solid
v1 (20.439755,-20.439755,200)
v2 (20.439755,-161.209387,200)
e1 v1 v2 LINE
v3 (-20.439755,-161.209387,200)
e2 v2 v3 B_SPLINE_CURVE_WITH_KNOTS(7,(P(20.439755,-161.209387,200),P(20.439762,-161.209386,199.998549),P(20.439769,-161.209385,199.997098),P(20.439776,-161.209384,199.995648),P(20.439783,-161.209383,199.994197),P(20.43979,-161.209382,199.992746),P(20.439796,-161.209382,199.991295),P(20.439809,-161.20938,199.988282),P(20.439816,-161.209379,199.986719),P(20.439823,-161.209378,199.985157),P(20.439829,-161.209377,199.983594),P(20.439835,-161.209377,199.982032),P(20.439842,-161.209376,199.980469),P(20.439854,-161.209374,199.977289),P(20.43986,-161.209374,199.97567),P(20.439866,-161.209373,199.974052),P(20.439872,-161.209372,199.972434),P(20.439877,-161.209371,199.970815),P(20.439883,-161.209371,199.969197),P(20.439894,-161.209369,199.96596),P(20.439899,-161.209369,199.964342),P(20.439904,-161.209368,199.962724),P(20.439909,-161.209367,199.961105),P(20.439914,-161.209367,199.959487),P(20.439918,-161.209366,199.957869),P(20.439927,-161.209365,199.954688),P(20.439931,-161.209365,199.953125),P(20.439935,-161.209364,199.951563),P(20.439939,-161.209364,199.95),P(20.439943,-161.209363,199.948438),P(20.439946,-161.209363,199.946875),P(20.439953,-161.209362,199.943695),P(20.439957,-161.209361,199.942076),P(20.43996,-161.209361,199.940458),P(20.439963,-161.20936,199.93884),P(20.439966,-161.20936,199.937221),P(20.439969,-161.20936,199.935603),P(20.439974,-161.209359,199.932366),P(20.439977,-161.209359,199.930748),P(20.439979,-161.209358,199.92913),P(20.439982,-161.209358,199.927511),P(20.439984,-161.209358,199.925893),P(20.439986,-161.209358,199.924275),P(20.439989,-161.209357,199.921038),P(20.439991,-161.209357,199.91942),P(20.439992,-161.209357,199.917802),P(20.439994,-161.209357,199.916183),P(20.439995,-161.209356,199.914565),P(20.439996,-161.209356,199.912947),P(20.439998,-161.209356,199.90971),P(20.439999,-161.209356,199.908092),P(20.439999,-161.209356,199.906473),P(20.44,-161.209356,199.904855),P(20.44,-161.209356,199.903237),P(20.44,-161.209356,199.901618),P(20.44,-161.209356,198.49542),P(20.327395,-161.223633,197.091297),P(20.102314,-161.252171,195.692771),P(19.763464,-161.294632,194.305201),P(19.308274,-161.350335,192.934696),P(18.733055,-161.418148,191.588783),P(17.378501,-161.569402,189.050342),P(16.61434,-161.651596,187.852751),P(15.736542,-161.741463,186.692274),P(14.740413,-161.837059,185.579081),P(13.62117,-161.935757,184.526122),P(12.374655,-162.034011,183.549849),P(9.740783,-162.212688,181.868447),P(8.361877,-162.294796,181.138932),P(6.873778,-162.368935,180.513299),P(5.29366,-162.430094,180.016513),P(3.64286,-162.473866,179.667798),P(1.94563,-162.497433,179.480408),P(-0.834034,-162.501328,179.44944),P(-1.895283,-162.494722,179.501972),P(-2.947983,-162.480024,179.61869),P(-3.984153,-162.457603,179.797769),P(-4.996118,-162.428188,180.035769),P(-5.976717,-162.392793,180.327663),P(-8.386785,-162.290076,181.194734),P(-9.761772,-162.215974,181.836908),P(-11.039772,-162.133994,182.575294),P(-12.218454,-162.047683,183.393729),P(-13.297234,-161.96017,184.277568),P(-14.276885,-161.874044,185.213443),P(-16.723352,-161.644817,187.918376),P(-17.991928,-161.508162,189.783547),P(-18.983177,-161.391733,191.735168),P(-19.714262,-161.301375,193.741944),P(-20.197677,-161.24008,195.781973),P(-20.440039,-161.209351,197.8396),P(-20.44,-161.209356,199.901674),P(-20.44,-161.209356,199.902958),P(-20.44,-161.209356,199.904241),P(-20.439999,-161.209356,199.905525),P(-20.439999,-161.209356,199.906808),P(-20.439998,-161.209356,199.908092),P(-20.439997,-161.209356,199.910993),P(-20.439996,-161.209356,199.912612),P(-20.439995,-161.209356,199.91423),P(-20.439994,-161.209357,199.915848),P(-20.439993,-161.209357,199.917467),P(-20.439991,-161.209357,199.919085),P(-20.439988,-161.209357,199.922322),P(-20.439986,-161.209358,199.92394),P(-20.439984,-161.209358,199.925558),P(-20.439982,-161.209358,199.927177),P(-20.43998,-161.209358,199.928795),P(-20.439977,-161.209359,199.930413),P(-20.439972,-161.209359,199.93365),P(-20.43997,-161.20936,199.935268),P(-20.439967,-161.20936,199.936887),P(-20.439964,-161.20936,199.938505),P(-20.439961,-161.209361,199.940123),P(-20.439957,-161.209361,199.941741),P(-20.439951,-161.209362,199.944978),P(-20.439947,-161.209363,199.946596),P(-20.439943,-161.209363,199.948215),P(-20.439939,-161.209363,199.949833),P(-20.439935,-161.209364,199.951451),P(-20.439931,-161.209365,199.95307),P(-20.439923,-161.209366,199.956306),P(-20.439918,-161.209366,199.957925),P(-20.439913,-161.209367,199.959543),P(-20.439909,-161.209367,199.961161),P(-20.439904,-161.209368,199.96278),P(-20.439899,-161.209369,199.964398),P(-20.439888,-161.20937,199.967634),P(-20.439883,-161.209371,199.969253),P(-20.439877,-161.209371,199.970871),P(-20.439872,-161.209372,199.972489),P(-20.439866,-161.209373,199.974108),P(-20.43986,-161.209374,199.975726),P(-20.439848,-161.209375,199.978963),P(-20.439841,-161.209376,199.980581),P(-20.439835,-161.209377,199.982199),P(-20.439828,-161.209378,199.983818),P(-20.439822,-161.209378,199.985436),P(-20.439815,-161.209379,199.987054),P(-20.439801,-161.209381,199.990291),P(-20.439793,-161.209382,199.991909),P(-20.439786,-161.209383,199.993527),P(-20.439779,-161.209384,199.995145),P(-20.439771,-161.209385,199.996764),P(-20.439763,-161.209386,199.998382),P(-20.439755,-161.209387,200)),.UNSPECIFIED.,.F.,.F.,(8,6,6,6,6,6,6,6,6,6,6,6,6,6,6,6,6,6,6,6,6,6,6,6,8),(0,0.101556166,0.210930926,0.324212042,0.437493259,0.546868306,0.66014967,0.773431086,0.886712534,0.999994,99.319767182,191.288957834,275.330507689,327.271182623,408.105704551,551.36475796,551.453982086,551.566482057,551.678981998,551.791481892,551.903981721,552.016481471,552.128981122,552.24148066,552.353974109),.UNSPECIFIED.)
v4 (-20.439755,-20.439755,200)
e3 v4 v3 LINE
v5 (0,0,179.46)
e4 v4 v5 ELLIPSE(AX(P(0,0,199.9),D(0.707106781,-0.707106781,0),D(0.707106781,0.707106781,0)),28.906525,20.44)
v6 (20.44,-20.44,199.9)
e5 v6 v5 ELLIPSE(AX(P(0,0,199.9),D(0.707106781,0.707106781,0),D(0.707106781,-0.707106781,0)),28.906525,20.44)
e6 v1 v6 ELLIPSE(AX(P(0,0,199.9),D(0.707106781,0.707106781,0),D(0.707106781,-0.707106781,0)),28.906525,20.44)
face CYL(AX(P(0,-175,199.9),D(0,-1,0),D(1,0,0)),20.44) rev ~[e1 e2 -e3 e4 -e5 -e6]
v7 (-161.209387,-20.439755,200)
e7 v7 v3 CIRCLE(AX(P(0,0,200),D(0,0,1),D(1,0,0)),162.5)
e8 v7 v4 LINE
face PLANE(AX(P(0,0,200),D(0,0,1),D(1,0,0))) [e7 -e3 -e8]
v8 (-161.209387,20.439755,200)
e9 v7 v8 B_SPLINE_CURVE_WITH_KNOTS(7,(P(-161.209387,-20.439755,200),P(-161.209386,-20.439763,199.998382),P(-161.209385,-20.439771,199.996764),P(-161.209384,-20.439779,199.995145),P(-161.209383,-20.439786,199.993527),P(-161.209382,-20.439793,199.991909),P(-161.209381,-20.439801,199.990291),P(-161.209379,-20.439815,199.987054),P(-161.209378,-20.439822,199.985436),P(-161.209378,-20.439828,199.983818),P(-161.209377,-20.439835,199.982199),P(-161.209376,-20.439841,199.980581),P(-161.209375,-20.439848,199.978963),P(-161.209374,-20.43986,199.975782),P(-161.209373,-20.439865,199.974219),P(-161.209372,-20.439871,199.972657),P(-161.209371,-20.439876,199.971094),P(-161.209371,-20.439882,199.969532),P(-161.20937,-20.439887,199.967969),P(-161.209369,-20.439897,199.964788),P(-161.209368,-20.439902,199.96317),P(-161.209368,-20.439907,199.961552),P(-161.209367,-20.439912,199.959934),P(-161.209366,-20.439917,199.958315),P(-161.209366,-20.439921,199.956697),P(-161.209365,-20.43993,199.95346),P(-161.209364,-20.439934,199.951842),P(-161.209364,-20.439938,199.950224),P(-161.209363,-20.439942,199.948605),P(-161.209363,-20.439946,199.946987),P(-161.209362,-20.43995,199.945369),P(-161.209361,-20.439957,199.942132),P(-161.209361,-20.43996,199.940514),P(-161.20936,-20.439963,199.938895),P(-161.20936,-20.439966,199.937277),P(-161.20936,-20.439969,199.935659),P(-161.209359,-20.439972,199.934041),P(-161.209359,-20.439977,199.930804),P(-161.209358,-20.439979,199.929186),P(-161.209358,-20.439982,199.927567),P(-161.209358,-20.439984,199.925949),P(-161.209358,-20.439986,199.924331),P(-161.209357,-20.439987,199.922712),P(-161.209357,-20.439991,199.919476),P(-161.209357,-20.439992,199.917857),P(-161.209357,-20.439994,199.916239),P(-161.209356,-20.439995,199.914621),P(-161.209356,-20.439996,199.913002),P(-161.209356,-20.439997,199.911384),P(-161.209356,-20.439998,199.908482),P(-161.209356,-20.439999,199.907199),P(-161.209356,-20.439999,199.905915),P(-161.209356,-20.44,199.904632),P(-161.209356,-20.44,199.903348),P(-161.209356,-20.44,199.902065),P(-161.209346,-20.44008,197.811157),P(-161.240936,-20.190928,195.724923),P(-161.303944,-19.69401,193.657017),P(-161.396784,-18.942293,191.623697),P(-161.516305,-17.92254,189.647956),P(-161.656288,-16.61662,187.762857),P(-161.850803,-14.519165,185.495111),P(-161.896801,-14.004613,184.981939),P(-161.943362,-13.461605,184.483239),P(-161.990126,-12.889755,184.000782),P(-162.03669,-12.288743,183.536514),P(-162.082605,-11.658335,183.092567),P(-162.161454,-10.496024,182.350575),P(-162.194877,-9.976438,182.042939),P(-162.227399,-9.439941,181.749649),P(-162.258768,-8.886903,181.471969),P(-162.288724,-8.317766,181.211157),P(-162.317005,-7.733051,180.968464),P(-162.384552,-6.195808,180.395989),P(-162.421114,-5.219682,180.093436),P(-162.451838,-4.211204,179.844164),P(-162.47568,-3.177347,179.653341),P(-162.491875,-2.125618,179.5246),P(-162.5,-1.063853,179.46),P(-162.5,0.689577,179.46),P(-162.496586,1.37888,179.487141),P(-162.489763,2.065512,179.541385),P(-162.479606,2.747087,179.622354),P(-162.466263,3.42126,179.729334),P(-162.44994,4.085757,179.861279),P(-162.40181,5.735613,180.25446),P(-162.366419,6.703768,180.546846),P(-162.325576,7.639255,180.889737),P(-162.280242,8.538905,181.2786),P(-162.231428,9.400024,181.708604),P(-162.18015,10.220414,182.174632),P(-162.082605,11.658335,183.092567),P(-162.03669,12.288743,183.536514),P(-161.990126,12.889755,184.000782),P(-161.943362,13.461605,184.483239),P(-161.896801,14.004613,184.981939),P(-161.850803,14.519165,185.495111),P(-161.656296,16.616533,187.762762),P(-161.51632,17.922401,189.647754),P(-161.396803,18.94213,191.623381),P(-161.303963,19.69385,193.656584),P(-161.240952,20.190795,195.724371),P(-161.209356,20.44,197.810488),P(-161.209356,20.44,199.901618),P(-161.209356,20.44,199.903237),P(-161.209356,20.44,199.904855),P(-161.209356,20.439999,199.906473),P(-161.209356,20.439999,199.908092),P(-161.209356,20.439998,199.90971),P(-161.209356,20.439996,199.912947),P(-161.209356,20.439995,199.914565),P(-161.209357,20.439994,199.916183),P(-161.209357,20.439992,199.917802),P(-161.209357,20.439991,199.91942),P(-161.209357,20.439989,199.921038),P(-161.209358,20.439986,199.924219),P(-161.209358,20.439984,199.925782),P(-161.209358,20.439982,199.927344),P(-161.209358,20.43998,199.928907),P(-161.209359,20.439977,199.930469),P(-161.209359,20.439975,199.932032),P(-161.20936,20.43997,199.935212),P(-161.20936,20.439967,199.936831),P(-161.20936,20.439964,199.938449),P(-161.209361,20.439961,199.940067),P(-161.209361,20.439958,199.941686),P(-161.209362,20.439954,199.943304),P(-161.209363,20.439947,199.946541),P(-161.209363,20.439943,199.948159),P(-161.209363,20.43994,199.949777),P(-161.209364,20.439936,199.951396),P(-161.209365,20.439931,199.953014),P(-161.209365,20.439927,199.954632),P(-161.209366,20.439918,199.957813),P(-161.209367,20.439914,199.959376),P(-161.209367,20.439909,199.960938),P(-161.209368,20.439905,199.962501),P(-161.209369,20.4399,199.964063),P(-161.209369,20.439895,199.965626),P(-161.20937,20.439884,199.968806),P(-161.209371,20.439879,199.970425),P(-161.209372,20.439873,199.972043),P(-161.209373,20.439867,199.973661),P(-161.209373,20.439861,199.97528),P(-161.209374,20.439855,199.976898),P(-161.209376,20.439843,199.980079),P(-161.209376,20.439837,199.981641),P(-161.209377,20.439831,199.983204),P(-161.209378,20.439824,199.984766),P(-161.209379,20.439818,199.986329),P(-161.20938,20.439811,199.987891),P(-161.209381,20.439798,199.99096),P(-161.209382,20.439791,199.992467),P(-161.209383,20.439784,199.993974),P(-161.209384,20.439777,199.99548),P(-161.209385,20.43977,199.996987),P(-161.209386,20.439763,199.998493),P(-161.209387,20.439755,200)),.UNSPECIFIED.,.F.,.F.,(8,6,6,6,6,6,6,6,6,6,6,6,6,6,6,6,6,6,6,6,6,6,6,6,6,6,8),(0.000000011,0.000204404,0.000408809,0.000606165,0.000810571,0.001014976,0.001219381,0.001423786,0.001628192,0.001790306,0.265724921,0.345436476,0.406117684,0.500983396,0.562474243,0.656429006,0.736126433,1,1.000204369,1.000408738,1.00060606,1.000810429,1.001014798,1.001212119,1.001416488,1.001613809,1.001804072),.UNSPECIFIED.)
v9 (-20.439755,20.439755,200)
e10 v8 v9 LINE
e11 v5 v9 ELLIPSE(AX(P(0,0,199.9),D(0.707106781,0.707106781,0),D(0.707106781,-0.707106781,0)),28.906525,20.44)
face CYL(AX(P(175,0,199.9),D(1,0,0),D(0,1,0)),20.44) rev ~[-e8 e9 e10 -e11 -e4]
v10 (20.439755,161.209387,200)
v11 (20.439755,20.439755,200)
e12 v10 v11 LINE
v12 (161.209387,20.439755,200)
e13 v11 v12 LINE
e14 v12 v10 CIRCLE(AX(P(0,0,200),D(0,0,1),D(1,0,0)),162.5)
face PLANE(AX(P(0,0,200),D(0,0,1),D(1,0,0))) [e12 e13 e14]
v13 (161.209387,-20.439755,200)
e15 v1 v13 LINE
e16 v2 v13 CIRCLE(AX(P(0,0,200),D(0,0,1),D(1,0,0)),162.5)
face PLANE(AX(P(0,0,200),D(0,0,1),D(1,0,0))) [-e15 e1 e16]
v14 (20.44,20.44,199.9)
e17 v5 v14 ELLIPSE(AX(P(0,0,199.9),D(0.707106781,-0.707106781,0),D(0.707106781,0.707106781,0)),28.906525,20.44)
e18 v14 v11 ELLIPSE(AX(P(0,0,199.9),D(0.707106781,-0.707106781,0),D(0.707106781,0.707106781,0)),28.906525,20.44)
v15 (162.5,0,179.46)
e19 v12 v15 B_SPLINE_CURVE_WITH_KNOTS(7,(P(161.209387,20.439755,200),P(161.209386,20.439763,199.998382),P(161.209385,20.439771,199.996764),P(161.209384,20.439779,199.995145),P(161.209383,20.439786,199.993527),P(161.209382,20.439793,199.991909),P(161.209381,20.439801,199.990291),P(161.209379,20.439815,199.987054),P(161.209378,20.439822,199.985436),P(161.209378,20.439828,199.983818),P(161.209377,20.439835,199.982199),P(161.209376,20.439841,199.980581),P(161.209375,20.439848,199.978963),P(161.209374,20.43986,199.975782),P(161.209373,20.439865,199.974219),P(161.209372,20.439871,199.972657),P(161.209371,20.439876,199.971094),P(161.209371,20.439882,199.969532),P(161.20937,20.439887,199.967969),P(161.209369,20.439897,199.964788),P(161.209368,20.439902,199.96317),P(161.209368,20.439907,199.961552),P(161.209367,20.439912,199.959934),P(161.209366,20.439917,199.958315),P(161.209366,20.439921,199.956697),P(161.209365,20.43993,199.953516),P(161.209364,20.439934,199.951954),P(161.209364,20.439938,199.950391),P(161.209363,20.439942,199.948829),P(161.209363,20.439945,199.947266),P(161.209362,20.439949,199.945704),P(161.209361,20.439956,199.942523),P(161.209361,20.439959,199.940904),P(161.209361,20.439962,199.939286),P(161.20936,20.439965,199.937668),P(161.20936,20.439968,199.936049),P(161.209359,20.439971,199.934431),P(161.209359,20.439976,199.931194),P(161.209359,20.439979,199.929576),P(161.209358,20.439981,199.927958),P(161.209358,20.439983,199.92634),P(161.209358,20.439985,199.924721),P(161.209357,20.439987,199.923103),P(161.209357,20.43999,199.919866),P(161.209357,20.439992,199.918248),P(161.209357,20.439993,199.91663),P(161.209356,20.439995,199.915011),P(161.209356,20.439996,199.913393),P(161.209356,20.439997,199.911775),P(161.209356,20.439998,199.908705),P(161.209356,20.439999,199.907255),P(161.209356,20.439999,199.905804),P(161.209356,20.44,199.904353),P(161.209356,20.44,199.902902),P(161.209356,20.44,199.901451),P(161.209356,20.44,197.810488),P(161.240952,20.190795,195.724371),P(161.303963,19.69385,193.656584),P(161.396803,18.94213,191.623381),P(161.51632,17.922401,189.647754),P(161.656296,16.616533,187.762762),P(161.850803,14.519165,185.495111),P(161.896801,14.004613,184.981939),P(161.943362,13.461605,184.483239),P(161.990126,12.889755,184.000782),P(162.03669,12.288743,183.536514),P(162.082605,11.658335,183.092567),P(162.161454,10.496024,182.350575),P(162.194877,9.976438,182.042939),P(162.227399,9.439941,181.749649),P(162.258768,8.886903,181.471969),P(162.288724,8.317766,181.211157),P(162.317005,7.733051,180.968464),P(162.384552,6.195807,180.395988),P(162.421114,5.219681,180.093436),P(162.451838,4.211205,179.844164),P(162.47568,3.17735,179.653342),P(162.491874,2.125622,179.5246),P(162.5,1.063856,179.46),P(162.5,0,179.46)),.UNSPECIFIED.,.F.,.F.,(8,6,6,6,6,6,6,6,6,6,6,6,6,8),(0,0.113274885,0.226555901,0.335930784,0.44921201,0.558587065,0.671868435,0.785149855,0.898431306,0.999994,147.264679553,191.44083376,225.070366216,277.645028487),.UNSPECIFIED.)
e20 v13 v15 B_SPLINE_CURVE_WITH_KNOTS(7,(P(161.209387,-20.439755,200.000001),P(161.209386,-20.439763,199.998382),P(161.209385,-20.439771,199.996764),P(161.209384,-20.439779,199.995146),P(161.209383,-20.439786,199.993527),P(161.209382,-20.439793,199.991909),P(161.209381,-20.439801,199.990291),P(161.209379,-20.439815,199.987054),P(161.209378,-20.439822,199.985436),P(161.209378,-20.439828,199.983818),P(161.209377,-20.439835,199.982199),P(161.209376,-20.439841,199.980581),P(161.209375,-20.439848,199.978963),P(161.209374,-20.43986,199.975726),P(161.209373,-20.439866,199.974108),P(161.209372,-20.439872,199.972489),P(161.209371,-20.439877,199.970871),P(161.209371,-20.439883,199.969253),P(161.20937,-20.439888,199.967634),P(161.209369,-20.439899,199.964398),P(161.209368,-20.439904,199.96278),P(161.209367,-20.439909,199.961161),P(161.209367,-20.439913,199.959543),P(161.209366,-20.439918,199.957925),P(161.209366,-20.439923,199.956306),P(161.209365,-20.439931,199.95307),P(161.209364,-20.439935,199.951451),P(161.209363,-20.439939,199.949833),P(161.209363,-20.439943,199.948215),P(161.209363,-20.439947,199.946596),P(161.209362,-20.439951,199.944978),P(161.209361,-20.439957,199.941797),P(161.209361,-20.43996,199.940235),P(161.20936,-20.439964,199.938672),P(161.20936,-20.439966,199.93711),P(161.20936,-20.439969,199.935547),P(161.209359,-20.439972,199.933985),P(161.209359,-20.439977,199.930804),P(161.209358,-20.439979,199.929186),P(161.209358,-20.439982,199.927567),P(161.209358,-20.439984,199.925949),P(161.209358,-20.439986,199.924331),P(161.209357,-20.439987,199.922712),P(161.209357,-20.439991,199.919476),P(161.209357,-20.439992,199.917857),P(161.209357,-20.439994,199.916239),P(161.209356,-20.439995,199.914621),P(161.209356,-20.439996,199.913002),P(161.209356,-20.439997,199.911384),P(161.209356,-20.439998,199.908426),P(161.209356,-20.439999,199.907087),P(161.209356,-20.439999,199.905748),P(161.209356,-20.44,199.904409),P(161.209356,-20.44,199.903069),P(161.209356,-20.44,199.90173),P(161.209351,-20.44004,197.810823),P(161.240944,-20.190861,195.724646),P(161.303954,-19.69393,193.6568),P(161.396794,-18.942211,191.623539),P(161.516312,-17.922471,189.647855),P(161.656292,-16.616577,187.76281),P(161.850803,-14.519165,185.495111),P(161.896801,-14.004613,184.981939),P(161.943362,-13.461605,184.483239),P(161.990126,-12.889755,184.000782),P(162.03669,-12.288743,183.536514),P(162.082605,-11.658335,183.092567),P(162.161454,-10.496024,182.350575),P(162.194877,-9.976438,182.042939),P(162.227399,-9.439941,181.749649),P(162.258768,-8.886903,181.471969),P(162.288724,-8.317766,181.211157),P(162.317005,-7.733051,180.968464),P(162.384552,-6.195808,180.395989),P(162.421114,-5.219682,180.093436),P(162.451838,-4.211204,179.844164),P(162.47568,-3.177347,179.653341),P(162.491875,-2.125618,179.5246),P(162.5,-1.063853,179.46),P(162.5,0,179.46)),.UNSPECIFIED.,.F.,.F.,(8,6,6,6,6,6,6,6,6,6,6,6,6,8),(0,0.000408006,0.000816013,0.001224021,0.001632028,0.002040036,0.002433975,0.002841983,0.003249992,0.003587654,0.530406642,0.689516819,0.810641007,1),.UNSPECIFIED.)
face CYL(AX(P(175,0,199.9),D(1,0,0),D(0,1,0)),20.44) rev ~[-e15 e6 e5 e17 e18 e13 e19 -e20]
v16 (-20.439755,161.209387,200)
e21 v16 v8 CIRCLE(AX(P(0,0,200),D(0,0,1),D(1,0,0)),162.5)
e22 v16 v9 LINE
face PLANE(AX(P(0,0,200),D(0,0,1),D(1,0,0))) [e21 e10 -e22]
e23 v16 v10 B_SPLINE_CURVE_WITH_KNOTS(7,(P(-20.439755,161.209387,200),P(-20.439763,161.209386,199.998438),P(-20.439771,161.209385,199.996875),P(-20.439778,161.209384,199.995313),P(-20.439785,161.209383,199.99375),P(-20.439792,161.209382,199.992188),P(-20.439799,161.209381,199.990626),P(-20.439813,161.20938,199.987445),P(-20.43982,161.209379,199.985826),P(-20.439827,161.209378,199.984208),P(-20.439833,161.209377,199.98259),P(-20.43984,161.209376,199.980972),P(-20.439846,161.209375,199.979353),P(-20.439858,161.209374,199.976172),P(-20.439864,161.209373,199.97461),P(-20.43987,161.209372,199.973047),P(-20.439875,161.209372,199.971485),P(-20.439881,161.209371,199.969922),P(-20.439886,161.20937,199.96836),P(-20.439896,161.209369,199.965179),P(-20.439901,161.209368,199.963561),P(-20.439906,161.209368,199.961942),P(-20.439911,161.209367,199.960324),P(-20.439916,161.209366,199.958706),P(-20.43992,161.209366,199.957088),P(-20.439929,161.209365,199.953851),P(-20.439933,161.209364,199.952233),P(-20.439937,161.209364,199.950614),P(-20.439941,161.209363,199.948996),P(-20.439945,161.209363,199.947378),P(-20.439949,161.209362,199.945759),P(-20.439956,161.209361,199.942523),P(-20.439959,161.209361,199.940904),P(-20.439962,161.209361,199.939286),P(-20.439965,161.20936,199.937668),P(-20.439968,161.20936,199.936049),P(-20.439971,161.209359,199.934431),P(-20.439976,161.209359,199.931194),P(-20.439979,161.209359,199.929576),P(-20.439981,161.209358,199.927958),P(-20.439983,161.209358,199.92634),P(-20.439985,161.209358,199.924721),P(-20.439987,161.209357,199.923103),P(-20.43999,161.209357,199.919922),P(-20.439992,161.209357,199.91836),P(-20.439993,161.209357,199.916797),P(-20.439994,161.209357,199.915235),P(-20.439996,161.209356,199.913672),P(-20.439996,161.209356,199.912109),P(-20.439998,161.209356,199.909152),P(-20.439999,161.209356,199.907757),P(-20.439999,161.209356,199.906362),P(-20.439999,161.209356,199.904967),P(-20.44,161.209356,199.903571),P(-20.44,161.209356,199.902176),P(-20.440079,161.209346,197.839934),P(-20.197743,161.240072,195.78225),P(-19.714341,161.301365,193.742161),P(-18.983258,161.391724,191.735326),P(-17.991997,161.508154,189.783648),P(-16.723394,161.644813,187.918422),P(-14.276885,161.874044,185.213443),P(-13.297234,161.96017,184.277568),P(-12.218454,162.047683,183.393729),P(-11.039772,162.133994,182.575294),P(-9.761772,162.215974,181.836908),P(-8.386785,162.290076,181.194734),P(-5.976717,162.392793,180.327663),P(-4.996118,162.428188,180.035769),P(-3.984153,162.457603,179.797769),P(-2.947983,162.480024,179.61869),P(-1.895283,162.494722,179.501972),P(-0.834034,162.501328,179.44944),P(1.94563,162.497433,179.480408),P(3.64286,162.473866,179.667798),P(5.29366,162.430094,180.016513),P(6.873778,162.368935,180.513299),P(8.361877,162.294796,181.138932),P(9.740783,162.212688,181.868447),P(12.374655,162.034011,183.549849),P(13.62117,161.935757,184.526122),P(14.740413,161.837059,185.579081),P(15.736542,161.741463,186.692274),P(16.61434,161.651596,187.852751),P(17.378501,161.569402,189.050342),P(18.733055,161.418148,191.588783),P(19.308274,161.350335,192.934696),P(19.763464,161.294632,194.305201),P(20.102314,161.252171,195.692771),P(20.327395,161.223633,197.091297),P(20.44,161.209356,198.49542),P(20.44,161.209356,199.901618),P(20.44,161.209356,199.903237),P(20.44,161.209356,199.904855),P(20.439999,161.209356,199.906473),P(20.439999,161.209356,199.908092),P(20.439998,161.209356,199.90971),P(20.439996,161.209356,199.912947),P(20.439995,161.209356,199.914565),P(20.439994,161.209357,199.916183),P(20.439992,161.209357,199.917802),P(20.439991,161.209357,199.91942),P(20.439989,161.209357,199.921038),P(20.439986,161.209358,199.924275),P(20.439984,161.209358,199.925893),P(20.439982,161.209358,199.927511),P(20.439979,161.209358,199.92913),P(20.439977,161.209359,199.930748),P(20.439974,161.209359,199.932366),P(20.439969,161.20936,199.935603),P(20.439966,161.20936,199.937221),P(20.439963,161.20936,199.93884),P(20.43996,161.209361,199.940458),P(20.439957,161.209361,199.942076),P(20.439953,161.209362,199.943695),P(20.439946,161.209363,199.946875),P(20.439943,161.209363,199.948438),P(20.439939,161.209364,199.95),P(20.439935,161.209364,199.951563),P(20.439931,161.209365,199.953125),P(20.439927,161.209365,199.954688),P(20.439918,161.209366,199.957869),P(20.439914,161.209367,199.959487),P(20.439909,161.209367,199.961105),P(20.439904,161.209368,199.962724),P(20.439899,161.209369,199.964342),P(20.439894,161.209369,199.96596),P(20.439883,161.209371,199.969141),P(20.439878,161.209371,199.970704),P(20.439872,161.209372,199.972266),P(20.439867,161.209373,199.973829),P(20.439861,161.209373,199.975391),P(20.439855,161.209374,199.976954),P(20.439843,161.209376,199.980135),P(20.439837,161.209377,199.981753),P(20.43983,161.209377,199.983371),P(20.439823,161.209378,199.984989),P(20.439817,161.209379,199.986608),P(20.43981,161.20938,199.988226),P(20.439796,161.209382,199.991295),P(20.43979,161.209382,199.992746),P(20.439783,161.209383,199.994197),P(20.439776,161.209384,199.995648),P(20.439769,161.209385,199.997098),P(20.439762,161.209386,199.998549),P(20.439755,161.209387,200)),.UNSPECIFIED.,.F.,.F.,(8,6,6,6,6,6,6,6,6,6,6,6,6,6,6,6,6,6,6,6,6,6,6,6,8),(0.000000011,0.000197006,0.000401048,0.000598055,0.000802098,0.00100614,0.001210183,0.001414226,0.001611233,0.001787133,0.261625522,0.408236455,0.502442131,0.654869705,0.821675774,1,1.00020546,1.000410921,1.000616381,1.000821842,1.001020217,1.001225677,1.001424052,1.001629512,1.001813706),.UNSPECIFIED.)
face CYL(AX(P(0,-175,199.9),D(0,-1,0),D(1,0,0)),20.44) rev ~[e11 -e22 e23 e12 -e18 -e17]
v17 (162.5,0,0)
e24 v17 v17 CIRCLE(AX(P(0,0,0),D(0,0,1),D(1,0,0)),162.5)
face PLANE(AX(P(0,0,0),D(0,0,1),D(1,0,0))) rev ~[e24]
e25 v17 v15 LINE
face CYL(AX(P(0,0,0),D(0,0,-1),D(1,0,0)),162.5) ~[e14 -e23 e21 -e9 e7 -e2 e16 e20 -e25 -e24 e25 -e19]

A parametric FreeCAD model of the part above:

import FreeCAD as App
import Part
import Sketcher
from FreeCAD import Vector
Q = App.Units.Quantity

doc = App.newDocument("Part")
body = doc.addObject("PartDesign::Body", "Body")

# Sketch on XY plane
sketch1 = body.newObject("Sketcher::SketchObject", "Sketch")
sketch1.AttachmentSupport = (doc.getObject("XY_Plane"), [""])
sketch1.MapMode = "FlatFace"
sketch1.addGeometry(Part.Circle(Vector(0, 0, 0), Vector(0, 0, 1), 162), False)
sketch1.addConstraint(Sketcher.Constraint("Coincident", 0, 3, -1, 1))
sketch1.addConstraint(Sketcher.Constraint("Diameter", 0, Q("325 mm")))
pad1 = body.newObject("PartDesign::Pad", "Pad")
pad1.Profile = sketch1
pad1.Length = 200

# Sketch on YZ plane
sketch2 = body.newObject("Sketcher::SketchObject", "Sketch001")
sketch2.AttachmentSupport = (doc.getObject("YZ_Plane"), [""])
sketch2.MapMode = "FlatFace"
sketch2.AttachmentOffset = App.Placement(Vector(0, 0, 175), App.Rotation())
sketch2.addGeometry(Part.Circle(Vector(0, 200, 0), Vector(0, 0, 1), 20), False)
sketch2.addConstraint(Sketcher.Constraint("PointOnObject", 0, 3, -2))
sketch2.addConstraint(Sketcher.Constraint("Diameter", 0, Q("40.88 mm")))
sketch2.addConstraint(Sketcher.Constraint("DistanceY", -1, 1, 0, 3, Q("199.9 mm")))
pocket1 = body.newObject("PartDesign::Pocket", "Pocket")
pocket1.Profile = sketch2
pocket1.Type = "ThroughAll"

# Sketch on XZ plane
sketch3 = body.newObject("Sketcher::SketchObject", "Sketch002")
sketch3.AttachmentSupport = (doc.getObject("XZ_Plane"), [""])
sketch3.MapMode = "FlatFace"
sketch3.AttachmentOffset = App.Placement(Vector(0, 0, 175), App.Rotation())
sketch3.addGeometry(Part.Circle(Vector(0, 200, 0), Vector(0, 0, 1), 20), False)
sketch3.addConstraint(Sketcher.Constraint("PointOnObject", 0, 3, -2))
sketch3.addConstraint(Sketcher.Constraint("Diameter", 0, Q("40.88 mm")))
sketch3.addConstraint(Sketcher.Constraint("DistanceY", -1, 1, 0, 3, Q("199.9 mm")))
pocket2 = body.newObject("PartDesign::Pocket", "Pocket001")
pocket2.Profile = sketch3
pocket2.Type = "ThroughAll"

doc.recompute()
